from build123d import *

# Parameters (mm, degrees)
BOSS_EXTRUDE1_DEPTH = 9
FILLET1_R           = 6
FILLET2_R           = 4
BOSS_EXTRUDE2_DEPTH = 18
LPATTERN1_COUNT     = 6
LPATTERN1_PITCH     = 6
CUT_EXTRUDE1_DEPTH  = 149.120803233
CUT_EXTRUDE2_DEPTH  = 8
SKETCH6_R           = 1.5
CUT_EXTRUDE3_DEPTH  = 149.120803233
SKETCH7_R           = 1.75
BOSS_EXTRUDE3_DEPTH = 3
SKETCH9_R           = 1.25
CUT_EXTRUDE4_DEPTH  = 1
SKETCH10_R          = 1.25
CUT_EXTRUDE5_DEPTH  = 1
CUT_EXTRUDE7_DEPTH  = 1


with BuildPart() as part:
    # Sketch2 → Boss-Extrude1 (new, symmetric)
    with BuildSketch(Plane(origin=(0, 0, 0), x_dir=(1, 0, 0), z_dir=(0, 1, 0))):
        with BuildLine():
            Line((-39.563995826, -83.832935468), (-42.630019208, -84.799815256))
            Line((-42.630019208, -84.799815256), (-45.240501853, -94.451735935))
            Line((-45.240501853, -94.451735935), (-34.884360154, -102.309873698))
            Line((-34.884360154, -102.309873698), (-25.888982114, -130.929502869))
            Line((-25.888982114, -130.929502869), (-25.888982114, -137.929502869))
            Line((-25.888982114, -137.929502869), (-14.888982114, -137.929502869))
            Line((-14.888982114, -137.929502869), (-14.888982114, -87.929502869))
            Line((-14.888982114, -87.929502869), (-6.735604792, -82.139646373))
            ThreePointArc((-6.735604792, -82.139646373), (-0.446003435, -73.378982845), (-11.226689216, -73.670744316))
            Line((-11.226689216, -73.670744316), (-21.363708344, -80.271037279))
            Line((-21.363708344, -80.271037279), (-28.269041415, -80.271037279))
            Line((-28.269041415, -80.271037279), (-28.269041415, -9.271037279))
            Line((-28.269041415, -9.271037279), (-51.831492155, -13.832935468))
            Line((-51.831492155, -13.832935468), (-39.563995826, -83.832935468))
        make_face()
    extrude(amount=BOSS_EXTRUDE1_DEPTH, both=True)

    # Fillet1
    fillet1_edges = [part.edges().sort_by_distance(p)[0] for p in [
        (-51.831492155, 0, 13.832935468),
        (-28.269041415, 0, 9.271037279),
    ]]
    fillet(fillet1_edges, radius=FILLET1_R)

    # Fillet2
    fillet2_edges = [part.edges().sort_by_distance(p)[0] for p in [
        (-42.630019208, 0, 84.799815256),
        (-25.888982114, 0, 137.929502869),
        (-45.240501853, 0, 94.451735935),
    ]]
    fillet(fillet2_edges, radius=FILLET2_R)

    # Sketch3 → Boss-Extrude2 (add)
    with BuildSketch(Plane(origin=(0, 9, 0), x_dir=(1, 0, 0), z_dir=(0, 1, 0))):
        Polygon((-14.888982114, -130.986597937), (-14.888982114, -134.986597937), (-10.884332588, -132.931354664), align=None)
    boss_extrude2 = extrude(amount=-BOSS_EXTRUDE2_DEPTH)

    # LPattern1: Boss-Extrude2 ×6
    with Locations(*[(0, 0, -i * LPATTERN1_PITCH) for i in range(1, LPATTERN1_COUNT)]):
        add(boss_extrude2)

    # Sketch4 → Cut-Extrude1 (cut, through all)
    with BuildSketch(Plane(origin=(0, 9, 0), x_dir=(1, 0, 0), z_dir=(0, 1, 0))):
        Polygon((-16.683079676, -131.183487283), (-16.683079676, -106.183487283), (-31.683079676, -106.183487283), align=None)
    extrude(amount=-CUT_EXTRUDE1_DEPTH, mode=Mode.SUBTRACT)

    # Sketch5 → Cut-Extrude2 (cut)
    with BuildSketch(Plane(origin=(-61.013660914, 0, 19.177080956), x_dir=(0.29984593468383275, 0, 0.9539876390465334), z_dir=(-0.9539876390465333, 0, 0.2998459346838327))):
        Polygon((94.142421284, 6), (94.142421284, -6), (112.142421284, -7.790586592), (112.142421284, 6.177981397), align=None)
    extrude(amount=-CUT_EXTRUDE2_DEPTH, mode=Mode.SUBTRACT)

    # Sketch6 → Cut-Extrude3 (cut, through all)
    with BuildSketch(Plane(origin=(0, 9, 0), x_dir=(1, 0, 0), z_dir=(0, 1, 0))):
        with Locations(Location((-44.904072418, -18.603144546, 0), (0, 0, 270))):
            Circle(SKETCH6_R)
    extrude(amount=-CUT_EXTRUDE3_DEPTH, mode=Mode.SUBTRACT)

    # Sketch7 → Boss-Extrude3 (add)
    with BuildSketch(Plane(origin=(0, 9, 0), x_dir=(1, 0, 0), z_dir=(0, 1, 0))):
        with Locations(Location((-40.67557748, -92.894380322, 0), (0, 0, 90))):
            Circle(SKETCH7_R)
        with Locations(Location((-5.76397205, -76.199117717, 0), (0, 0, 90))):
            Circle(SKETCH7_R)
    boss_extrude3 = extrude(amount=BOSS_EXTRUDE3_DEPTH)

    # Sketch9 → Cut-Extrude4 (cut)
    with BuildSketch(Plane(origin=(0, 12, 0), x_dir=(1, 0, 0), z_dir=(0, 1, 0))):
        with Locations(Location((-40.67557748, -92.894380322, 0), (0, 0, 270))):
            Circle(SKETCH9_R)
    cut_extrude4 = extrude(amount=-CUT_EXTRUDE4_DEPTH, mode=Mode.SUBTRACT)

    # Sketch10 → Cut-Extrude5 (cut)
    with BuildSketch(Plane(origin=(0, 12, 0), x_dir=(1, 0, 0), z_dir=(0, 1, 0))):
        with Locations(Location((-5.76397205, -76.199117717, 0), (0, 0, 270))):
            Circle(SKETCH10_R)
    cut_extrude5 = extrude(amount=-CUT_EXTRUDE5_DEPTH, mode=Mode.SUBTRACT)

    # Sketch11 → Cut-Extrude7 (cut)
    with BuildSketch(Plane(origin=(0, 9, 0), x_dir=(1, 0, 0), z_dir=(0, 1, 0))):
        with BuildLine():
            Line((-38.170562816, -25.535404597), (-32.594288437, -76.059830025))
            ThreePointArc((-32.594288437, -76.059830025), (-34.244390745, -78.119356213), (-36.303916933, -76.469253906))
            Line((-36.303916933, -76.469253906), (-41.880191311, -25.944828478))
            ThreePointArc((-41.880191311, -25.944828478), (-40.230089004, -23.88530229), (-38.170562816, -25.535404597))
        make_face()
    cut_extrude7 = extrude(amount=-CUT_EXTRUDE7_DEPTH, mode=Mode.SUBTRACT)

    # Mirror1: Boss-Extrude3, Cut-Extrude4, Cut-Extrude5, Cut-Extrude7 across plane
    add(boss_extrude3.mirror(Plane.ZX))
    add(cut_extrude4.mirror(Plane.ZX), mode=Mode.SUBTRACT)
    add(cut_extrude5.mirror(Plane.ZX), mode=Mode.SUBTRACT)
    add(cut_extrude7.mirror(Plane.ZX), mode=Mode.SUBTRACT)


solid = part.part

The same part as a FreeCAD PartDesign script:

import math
import FreeCAD as App
import Part
import Sketcher
from FreeCAD import Vector
Q = App.Units.Quantity


def edges_at(feature, points):
    """Names of the edges that pass closest to the given points."""
    edges = feature.Shape.Edges
    near = lambda p: min(range(len(edges)), key=lambda i: edges[i].distToShape(Part.Vertex(*p))[0])
    return sorted({f"Edge{near(p) + 1}" for p in points})

doc = App.newDocument("Part")
body = doc.addObject("PartDesign::Body", "Body")

sketch1 = doc.addObject("Sketcher::SketchObject", "Sketch")
body.addObject(sketch1)
sketch1.AttachmentSupport = (doc.XZ_Plane, [""])
sketch1.MapMode = "FlatFace"
sketch1.addGeometry(Part.LineSegment(Vector(-39.563996, 83.832935, 0), Vector(-42.630019, 84.799815, 0)), False)
sketch1.addGeometry(Part.LineSegment(Vector(-42.630019, 84.799815, 0), Vector(-45.240502, 94.451736, 0)), False)
sketch1.addGeometry(Part.LineSegment(Vector(-45.240502, 94.451736, 0), Vector(-34.88436, 102.309874, 0)), False)
sketch1.addGeometry(Part.LineSegment(Vector(-34.88436, 102.309874, 0), Vector(-25.888982, 130.929503, 0)), False)
sketch1.addGeometry(Part.LineSegment(Vector(-25.888982, 130.929503, 0), Vector(-25.888982, 137.929503, 0)), False)
sketch1.addGeometry(Part.LineSegment(Vector(-25.888982, 137.929503, 0), Vector(-14.888982, 137.929503, 0)), False)
sketch1.addGeometry(Part.LineSegment(Vector(-14.888982, 137.929503, 0), Vector(-14.888982, 87.929503, 0)), False)
sketch1.addGeometry(Part.LineSegment(Vector(-14.888982, 87.929503, 0), Vector(-6.735605, 82.139646, 0)), False)
sketch1.addGeometry(Part.ArcOfCircle(Part.Circle(Vector(-5.763972, 76.199118, 0), Vector(0, 0, 1), 6.019464), math.radians(-155.163332), math.radians(99.289046)), False)
sketch1.addGeometry(Part.LineSegment(Vector(-11.226689, 73.670744, 0), Vector(-21.363708, 80.271037, 0)), False)
sketch1.addGeometry(Part.LineSegment(Vector(-21.363708, 80.271037, 0), Vector(-28.269041, 80.271037, 0)), False)
sketch1.addGeometry(Part.LineSegment(Vector(-28.269041, 80.271037, 0), Vector(-28.269041, 9.271037, 0)), False)
sketch1.addGeometry(Part.LineSegment(Vector(-28.269041, 9.271037, 0), Vector(-51.831492, 13.832935, 0)), False)
sketch1.addGeometry(Part.LineSegment(Vector(-51.831492, 13.832935, 0), Vector(-39.563996, 83.832935, 0)), False)
sketch1.addConstraint(Sketcher.Constraint("Coincident", 0, 2, 1, 1))
sketch1.addConstraint(Sketcher.Constraint("Coincident", 1, 2, 2, 1))
sketch1.addConstraint(Sketcher.Constraint("Coincident", 2, 2, 3, 1))
sketch1.addConstraint(Sketcher.Constraint("Coincident", 3, 2, 4, 1))
sketch1.addConstraint(Sketcher.Constraint("Coincident", 4, 2, 5, 1))
sketch1.addConstraint(Sketcher.Constraint("Coincident", 5, 2, 6, 1))
sketch1.addConstraint(Sketcher.Constraint("Coincident", 6, 2, 7, 1))
sketch1.addConstraint(Sketcher.Constraint("Coincident", 7, 2, 8, 2))
sketch1.addConstraint(Sketcher.Constraint("Coincident", 8, 1, 9, 1))
sketch1.addConstraint(Sketcher.Constraint("Coincident", 9, 2, 10, 1))
sketch1.addConstraint(Sketcher.Constraint("Coincident", 10, 2, 11, 1))
sketch1.addConstraint(Sketcher.Constraint("Coincident", 11, 2, 12, 1))
sketch1.addConstraint(Sketcher.Constraint("Coincident", 12, 2, 13, 1))
sketch1.addConstraint(Sketcher.Constraint("Coincident", 13, 2, 0, 1))
sketch1.addConstraint(Sketcher.Constraint("Vertical", 4))
sketch1.addConstraint(Sketcher.Constraint("Horizontal", 5))
sketch1.addConstraint(Sketcher.Constraint("Vertical", 6))
sketch1.addConstraint(Sketcher.Constraint("Horizontal", 10))
sketch1.addConstraint(Sketcher.Constraint("Vertical", 11))
sketch1.addConstraint(Sketcher.Constraint("DistanceX", 5, 1, 5, 2, Q("11 mm")))
sketch1.addConstraint(Sketcher.Constraint("DistanceY", 4, 1, 4, 2, Q("7 mm")))
sketch1.addConstraint(Sketcher.Constraint("DistanceY", 6, 2, 6, 1, Q("50 mm")))
sketch1.addConstraint(Sketcher.Constraint("DistanceY", 11, 2, 11, 1, Q("71 mm")))
sketch1.addConstraint(Sketcher.Constraint("Distance", 2, Q("13 mm")))
sketch1.addConstraint(Sketcher.Constraint("Distance", 3, Q("30 mm")))
sketch1.addConstraint(Sketcher.Constraint("Distance", 7, Q("10 mm")))
sketch1.addConstraint(Sketcher.Constraint("Distance", 12, Q("24 mm")))
sketch1.addConstraint(Sketcher.Constraint("Radius", 8, Q("6.019464 mm")))
sketch1.addConstraint(Sketcher.Constraint("DistanceX", 1, 2, -1, 1, Q("45.240502 mm")))
sketch1.addConstraint(Sketcher.Constraint("DistanceY", 11, 2, 12, 2, Q("4.561898 mm")))
sketch1.addConstraint(Sketcher.Constraint("DistanceY", 10, 2, 13, 2, Q("3.561898 mm")))
sketch1.addConstraint(Sketcher.Constraint("DistanceY", 13, 2, 1, 2, Q("10.6188 mm")))
sketch1.addConstraint(Sketcher.Constraint("Distance", 1, Q("9.99871 mm")))
sketch1.addConstraint(Sketcher.Constraint("Distance", 13, Q("71.06681 mm")))
sketch1.addConstraint(Sketcher.Constraint("DistanceX", 10, 2, 10, 1, Q("6.905333 mm")))
sketch1.addConstraint(Sketcher.Constraint("DistanceX", 0, 2, -1, 1, Q("42.630019 mm")))
sketch1.addConstraint(Sketcher.Constraint("DistanceX", 2, 2, -1, 1, Q("34.88436 mm")))
sketch1.addConstraint(Sketcher.Constraint("DistanceX", 8, 1, -1, 1, Q("11.226689 mm")))
sketch1.addConstraint(Sketcher.Constraint("DistanceX", 9, 2, -1, 1, Q("21.363708 mm")))
sketch1.addConstraint(Sketcher.Constraint("DistanceX", 1, 2, 8, 3, Q("39.47653 mm")))
sketch1.addConstraint(Sketcher.Constraint("DistanceY", 8, 3, 1, 2, Q("18.252618 mm")))
sketch1.addConstraint(Sketcher.Constraint("DistanceX", 2, 2, 3, 2, Q("8.995378 mm")))
sketch1.addConstraint(Sketcher.Constraint("DistanceY", -1, 1, 8, 3, Q("76.199118 mm")))
pad1 = doc.addObject("PartDesign::Pad", "Pad")
body.addObject(pad1)
pad1.Profile = sketch1
pad1.Length = 18
pad1.Midplane = True
doc.recompute()

fillet = doc.addObject("PartDesign::Fillet", "Fillet")
body.addObject(fillet)
fillet.Base = (pad1, edges_at(pad1, [(-51.831, 0, 13.833), (-28.269, 0, 9.271)]))
fillet.Radius = 6
doc.recompute()

fillet2 = doc.addObject("PartDesign::Fillet", "Fillet001")
body.addObject(fillet2)
fillet2.Base = (fillet, edges_at(fillet, [(-42.63, 0, 84.8), (-25.889, 0, 137.93), (-45.241, 0, 94.452)]))
fillet2.Radius = 4

sketch2 = doc.addObject("Sketcher::SketchObject", "Sketch001")
body.addObject(sketch2)
sketch2.AttachmentSupport = (doc.XZ_Plane, [""])
sketch2.MapMode = "FlatFace"
sketch2.AttachmentOffset = App.Placement(Vector(0, 0, -9), App.Rotation())
sketch2.addGeometry(Part.LineSegment(Vector(-14.888982, 130.986598, 0), Vector(-14.888982, 134.986598, 0)), False)
sketch2.addGeometry(Part.LineSegment(Vector(-14.888982, 134.986598, 0), Vector(-10.884333, 132.931355, 0)), False)
sketch2.addGeometry(Part.LineSegment(Vector(-10.884333, 132.931355, 0), Vector(-14.888982, 130.986598, 0)), False)
sketch2.addConstraint(Sketcher.Constraint("Coincident", 0, 2, 1, 1))
sketch2.addConstraint(Sketcher.Constraint("Coincident", 1, 2, 2, 1))
sketch2.addConstraint(Sketcher.Constraint("Coincident", 2, 2, 0, 1))
sketch2.addConstraint(Sketcher.Constraint("Vertical", 0))
sketch2.addConstraint(Sketcher.Constraint("DistanceY", 0, 1, 0, 2, Q("4 mm")))
sketch2.addConstraint(Sketcher.Constraint("Distance", 1, Q("4.501249 mm")))
sketch2.addConstraint(Sketcher.Constraint("DistanceX", 0, 2, 1, 2, Q("4.00465 mm")))
sketch2.addConstraint(Sketcher.Constraint("DistanceX", 0, 2, -1, 1, Q("14.888982 mm")))
sketch2.addConstraint(Sketcher.Constraint("DistanceY", -1, 1, 0, 2, Q("134.986598 mm")))
pad2 = doc.addObject("PartDesign::Pad", "Pad001")
body.addObject(pad2)
pad2.Profile = sketch2
pad2.Length = 18
doc.recompute()

linearpattern = doc.addObject("PartDesign::LinearPattern", "LinearPattern")
body.addObject(linearpattern)
linearpattern.Originals = [pad2]
linearpattern.Direction = (doc.Z_Axis, [""])
linearpattern.Mode = "offset"
linearpattern.Offset = 6
linearpattern.Occurrences = 6
linearpattern.Reversed = True
body.Tip = linearpattern

sketch3 = doc.addObject("Sketcher::SketchObject", "Sketch002")
body.addObject(sketch3)
sketch3.AttachmentSupport = (doc.XZ_Plane, [""])
sketch3.MapMode = "FlatFace"
sketch3.AttachmentOffset = App.Placement(Vector(0, 0, -9), App.Rotation())
sketch3.addGeometry(Part.LineSegment(Vector(-16.68308, 131.183487, 0), Vector(-16.68308, 106.183487, 0)), False)
sketch3.addGeometry(Part.LineSegment(Vector(-16.68308, 106.183487, 0), Vector(-31.68308, 106.183487, 0)), False)
sketch3.addGeometry(Part.LineSegment(Vector(-31.68308, 106.183487, 0), Vector(-16.68308, 131.183487, 0)), False)
sketch3.addConstraint(Sketcher.Constraint("Coincident", 0, 2, 1, 1))
sketch3.addConstraint(Sketcher.Constraint("Coincident", 1, 2, 2, 1))
sketch3.addConstraint(Sketcher.Constraint("Coincident", 2, 2, 0, 1))
sketch3.addConstraint(Sketcher.Constraint("Vertical", 0))
sketch3.addConstraint(Sketcher.Constraint("Horizontal", 1))
sketch3.addConstraint(Sketcher.Constraint("DistanceX", 1, 2, 1, 1, Q("15 mm")))
sketch3.addConstraint(Sketcher.Constraint("DistanceY", 0, 2, 0, 1, Q("25 mm")))
sketch3.addConstraint(Sketcher.Constraint("DistanceX", 0, 2, -1, 1, Q("16.68308 mm")))
sketch3.addConstraint(Sketcher.Constraint("DistanceY", -1, 1, 0, 2, Q("106.183487 mm")))
pocket1 = doc.addObject("PartDesign::Pocket", "Pocket")
body.addObject(pocket1)
pocket1.Profile = sketch3
pocket1.Type = "ThroughAll"
pocket1.Reversed = True

sketch4 = doc.addObject("Sketcher::SketchObject", "Sketch003")
body.addObject(sketch4)
sketch4.Placement = App.Placement(Vector(-61.013661, 0, 19.177081), App.Rotation(Vector(0.299845935, 0, 0.953987639), Vector(0, 1, 0), Vector(-0.953987639, 0, 0.299845935), "ZXY"))
sketch4.addGeometry(Part.LineSegment(Vector(94.142421, 6, 0), Vector(94.142421, -6, 0)), False)
sketch4.addGeometry(Part.LineSegment(Vector(94.142421, -6, 0), Vector(112.142421, -7.790587, 0)), False)
sketch4.addGeometry(Part.LineSegment(Vector(112.142421, -7.790587, 0), Vector(112.142421, 6.177981, 0)), False)
sketch4.addGeometry(Part.LineSegment(Vector(112.142421, 6.177981, 0), Vector(94.142421, 6, 0)), False)
sketch4.addConstraint(Sketcher.Constraint("Coincident", 0, 2, 1, 1))
sketch4.addConstraint(Sketcher.Constraint("Coincident", 1, 2, 2, 1))
sketch4.addConstraint(Sketcher.Constraint("Coincident", 2, 2, 3, 1))
sketch4.addConstraint(Sketcher.Constraint("Coincident", 3, 2, 0, 1))
sketch4.addConstraint(Sketcher.Constraint("Vertical", 0))
sketch4.addConstraint(Sketcher.Constraint("Vertical", 2))
sketch4.addConstraint(Sketcher.Constraint("DistanceY", 0, 2, 0, 1, Q("12 mm")))
sketch4.addConstraint(Sketcher.Constraint("DistanceY", 0, 2, -1, 1, Q("6 mm")))
sketch4.addConstraint(Sketcher.Constraint("DistanceX", 0, 2, 1, 2, Q("18 mm")))
sketch4.addConstraint(Sketcher.Constraint("Distance", 1, Q("18.088842 mm")))
sketch4.addConstraint(Sketcher.Constraint("Distance", 3, Q("18.00088 mm")))
sketch4.addConstraint(Sketcher.Constraint("DistanceX", -1, 1, 0, 2, Q("94.142421 mm")))
pocket2 = doc.addObject("PartDesign::Pocket", "Pocket001")
body.addObject(pocket2)
pocket2.Profile = sketch4
pocket2.Length = 8

sketch5 = doc.addObject("Sketcher::SketchObject", "Sketch004")
body.addObject(sketch5)
sketch5.AttachmentSupport = (doc.XZ_Plane, [""])
sketch5.MapMode = "FlatFace"
sketch5.AttachmentOffset = App.Placement(Vector(0, 0, -9), App.Rotation())
sketch5.addGeometry(Part.Circle(Vector(-44.904072, 18.603145, 0), Vector(0, 0, 1), 1.5), False)
sketch5.addConstraint(Sketcher.Constraint("Diameter", 0, Q("3 mm")))
sketch5.addConstraint(Sketcher.Constraint("DistanceX", 0, 3, -1, 1, Q("44.904072 mm")))
sketch5.addConstraint(Sketcher.Constraint("DistanceY", -1, 1, 0, 3, Q("18.603145 mm")))
pocket3 = doc.addObject("PartDesign::Pocket", "Pocket002")
body.addObject(pocket3)
pocket3.Profile = sketch5
pocket3.Type = "ThroughAll"
pocket3.Reversed = True

sketch6 = doc.addObject("Sketcher::SketchObject", "Sketch005")
body.addObject(sketch6)
sketch6.AttachmentSupport = (doc.XZ_Plane, [""])
sketch6.MapMode = "FlatFace"
sketch6.AttachmentOffset = App.Placement(Vector(0, 0, -9), App.Rotation())
sketch6.addGeometry(Part.Circle(Vector(-40.675577, 92.89438, 0), Vector(0, 0, 1), 1.75), False)
sketch6.addGeometry(Part.Circle(Vector(-5.763972, 76.199118, 0), Vector(0, 0, 1), 1.75), False)
sketch6.addConstraint(Sketcher.Constraint("Equal", 0, 1))
sketch6.addConstraint(Sketcher.Constraint("Diameter", 0, Q("3.5 mm")))
sketch6.addConstraint(Sketcher.Constraint("DistanceY", -1, 1, 0, 3, Q("92.89438 mm")))
sketch6.addConstraint(Sketcher.Constraint("DistanceX", 0, 3, -1, 1, Q("40.675577 mm")))
sketch6.addConstraint(Sketcher.Constraint("DistanceX", 1, 3, -1, 1, Q("5.763972 mm")))
sketch6.addConstraint(Sketcher.Constraint("DistanceY", -1, 1, 1, 3, Q("76.199118 mm")))
pad3 = doc.addObject("PartDesign::Pad", "Pad002")
body.addObject(pad3)
pad3.Profile = sketch6
pad3.Length = 3
pad3.Reversed = True

sketch7 = doc.addObject("Sketcher::SketchObject", "Sketch006")
body.addObject(sketch7)
sketch7.AttachmentSupport = (doc.XZ_Plane, [""])
sketch7.MapMode = "FlatFace"
sketch7.AttachmentOffset = App.Placement(Vector(0, 0, -12), App.Rotation())
sketch7.addGeometry(Part.Circle(Vector(-40.675577, 92.89438, 0), Vector(0, 0, 1), 1.25), False)
sketch7.addConstraint(Sketcher.Constraint("Diameter", 0, Q("2.5 mm")))
sketch7.addConstraint(Sketcher.Constraint("DistanceY", -1, 1, 0, 3, Q("92.89438 mm")))
sketch7.addConstraint(Sketcher.Constraint("DistanceX", 0, 3, -1, 1, Q("40.675577 mm")))
pocket4 = doc.addObject("PartDesign::Pocket", "Pocket003")
body.addObject(pocket4)
pocket4.Profile = sketch7
pocket4.Length = 1
pocket4.Reversed = True

sketch8 = doc.addObject("Sketcher::SketchObject", "Sketch007")
body.addObject(sketch8)
sketch8.AttachmentSupport = (doc.XZ_Plane, [""])
sketch8.MapMode = "FlatFace"
sketch8.AttachmentOffset = App.Placement(Vector(0, 0, -12), App.Rotation())
sketch8.addGeometry(Part.Circle(Vector(-5.763972, 76.199118, 0), Vector(0, 0, 1), 1.25), False)
sketch8.addConstraint(Sketcher.Constraint("Diameter", 0, Q("2.5 mm")))
sketch8.addConstraint(Sketcher.Constraint("DistanceX", 0, 3, -1, 1, Q("5.763972 mm")))
sketch8.addConstraint(Sketcher.Constraint("DistanceY", -1, 1, 0, 3, Q("76.199118 mm")))
pocket5 = doc.addObject("PartDesign::Pocket", "Pocket004")
body.addObject(pocket5)
pocket5.Profile = sketch8
pocket5.Length = 1
pocket5.Reversed = True

sketch9 = doc.addObject("Sketcher::SketchObject", "Sketch008")
body.addObject(sketch9)
sketch9.AttachmentSupport = (doc.XZ_Plane, [""])
sketch9.MapMode = "FlatFace"
sketch9.AttachmentOffset = App.Placement(Vector(0, 0, -9), App.Rotation())
sketch9.addGeometry(Part.LineSegment(Vector(-32.594288, 76.05983, 0), Vector(-38.170563, 25.535405, 0)), False)
sketch9.addGeometry(Part.ArcOfCircle(Part.Circle(Vector(-40.025377, 25.740117, 0), Vector(0, 0, 1), 1.866077), math.radians(173.701876), math.radians(353.701876)), False)
sketch9.addGeometry(Part.LineSegment(Vector(-41.880191, 25.944828, 0), Vector(-36.303917, 76.469254, 0)), False)
sketch9.addGeometry(Part.ArcOfCircle(Part.Circle(Vector(-34.449103, 76.264542, 0), Vector(0, 0, 1), 1.866077), math.radians(-6.298124), math.radians(173.701876)), False)
sketch9.addConstraint(Sketcher.Constraint("Tangent", 0, 2, 1, 2))
sketch9.addConstraint(Sketcher.Constraint("Tangent", 1, 1, 2, 1))
sketch9.addConstraint(Sketcher.Constraint("Tangent", 2, 2, 3, 2))
sketch9.addConstraint(Sketcher.Constraint("Tangent", 3, 1, 0, 1))
sketch9.addConstraint(Sketcher.Constraint("Equal", 1, 3))
sketch9.addConstraint(Sketcher.Constraint("Radius", 1, Q("1.866077 mm")))
sketch9.addConstraint(Sketcher.Constraint("DistanceY", 1, 1, 3, 1, Q("50.115002 mm")))
sketch9.addConstraint(Sketcher.Constraint("DistanceY", -1, 1, 3, 3, Q("76.264542 mm")))
sketch9.addConstraint(Sketcher.Constraint("DistanceX", 1, 1, -1, 1, Q("41.880191 mm")))
sketch9.addConstraint(Sketcher.Constraint("DistanceY", -1, 1, 1, 1, Q("25.944828 mm")))
pocket6 = doc.addObject("PartDesign::Pocket", "Pocket005")
body.addObject(pocket6)
pocket6.Profile = sketch9
pocket6.Length = 1
pocket6.Reversed = True
doc.recompute()

mirrored = doc.addObject("PartDesign::Mirrored", "Mirrored")
body.addObject(mirrored)
mirrored.Originals = [pad3, pocket4, pocket5, pocket6]
mirrored.MirrorPlane = (doc.XZ_Plane, [""])
body.Tip = mirrored

doc.recompute()
